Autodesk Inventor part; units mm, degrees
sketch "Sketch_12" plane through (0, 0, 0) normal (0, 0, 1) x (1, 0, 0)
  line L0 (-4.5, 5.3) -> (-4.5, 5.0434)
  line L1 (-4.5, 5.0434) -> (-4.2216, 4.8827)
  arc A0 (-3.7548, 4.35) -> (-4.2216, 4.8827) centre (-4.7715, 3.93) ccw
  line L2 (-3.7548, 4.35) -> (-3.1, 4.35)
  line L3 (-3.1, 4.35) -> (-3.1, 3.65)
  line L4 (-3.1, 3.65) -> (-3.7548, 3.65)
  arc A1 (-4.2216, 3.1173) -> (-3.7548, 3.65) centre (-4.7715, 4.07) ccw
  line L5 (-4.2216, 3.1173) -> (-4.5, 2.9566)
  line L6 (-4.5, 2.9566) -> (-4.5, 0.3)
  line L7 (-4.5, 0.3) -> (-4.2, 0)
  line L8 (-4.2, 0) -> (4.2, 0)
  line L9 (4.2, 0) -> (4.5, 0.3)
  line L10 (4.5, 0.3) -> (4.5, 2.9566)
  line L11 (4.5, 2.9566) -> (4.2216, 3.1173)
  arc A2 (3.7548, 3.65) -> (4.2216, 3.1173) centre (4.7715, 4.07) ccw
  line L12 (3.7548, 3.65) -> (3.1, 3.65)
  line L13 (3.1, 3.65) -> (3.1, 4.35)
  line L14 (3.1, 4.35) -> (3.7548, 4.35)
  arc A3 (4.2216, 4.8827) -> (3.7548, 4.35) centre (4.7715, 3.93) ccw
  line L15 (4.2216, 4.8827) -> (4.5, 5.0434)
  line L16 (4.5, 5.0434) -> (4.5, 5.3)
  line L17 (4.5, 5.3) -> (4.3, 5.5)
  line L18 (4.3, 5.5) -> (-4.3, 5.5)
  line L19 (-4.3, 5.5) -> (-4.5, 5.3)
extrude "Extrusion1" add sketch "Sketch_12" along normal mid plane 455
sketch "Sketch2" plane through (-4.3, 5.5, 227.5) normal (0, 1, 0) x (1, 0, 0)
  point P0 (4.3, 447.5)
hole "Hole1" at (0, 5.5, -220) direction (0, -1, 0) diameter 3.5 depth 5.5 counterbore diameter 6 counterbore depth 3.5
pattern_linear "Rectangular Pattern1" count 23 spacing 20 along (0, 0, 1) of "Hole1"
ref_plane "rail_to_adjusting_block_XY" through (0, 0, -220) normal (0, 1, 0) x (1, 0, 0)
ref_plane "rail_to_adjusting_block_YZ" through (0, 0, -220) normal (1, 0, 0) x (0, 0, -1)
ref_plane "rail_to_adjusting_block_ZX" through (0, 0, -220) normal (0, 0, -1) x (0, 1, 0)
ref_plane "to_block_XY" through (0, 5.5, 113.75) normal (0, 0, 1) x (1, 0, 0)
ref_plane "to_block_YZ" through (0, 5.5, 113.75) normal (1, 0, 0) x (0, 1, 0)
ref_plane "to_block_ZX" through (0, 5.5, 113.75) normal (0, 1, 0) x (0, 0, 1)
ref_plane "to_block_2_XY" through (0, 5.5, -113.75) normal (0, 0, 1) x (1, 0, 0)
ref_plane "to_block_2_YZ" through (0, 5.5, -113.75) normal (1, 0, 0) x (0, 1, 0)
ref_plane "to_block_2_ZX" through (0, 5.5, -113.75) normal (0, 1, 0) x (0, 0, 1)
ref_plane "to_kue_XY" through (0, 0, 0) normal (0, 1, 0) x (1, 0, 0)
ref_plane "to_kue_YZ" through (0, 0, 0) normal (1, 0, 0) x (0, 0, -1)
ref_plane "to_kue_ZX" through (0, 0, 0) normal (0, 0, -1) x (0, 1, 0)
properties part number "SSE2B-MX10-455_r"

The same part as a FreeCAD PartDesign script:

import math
import FreeCAD as App
import Part
import Sketcher

doc = App.newDocument("Part")
params = doc.addObject("Spreadsheet::Sheet", "Params")
for row, (alias, value) in enumerate([
    ("sketch1_radius", "1.1 mm"),
    ("sketch1_width", "8.4 mm"),
    ("sketch1_width2", "8.6 mm"),
    ("sketch1_height", "0.7 mm"),
    ("pad1_length", "455 mm"),
    ("sketch2_diameter", "3.5 mm"),
    ("hole_diameter", "3.5 mm"),
    ("hole_depth", "5.5 mm"),
    ("hole_cbore_diameter", "6 mm"),
    ("hole_cbore_depth", "3.5 mm"),
    ("linearpattern_pitch", "20 mm"),
], start=1):
    params.set(f"A{row}", alias)
    params.set(f"B{row}", "=" + value)
    params.setAlias(f"B{row}", alias)

body = doc.addObject("PartDesign::Body", "Body")

sketch1 = body.newObject("Sketcher::SketchObject", "Sketch")
sketch1.AttachmentSupport = (doc.getObject("XY_Plane"), [""])
sketch1.MapMode = "FlatFace"
sketch1.addGeometry(Part.LineSegment(App.Vector(-4.3, 5.5, 0), App.Vector(-4.5, 5.3, 0)), False)
sketch1.addGeometry(Part.LineSegment(App.Vector(-4.5, 5.3, 0), App.Vector(-4.5, 5.04, 0)), False)
sketch1.addGeometry(Part.LineSegment(App.Vector(-4.5, 5.04, 0), App.Vector(-4.22, 4.88, 0)), False)
sketch1.addGeometry(Part.ArcOfCircle(Part.Circle(App.Vector(-4.77, 3.93, 0), App.Vector(0, 0, 1), 1.1), math.radians(22), math.radians(60)), False)
sketch1.addGeometry(Part.LineSegment(App.Vector(-3.75, 4.35, 0), App.Vector(-3.1, 4.35, 0)), False)
sketch1.addGeometry(Part.LineSegment(App.Vector(-3.1, 4.35, 0), App.Vector(-3.1, 3.65, 0)), False)
sketch1.addGeometry(Part.LineSegment(App.Vector(-3.1, 3.65, 0), App.Vector(-3.75, 3.65, 0)), False)
sketch1.addGeometry(Part.ArcOfCircle(Part.Circle(App.Vector(-4.77, 4.07, 0), App.Vector(0, 0, 1), 1.1), math.radians(-60), math.radians(-22)), False)
sketch1.addGeometry(Part.LineSegment(App.Vector(-4.22, 3.12, 0), App.Vector(-4.5, 2.96, 0)), False)
sketch1.addGeometry(Part.LineSegment(App.Vector(-4.5, 2.96, 0), App.Vector(-4.5, 0.3, 0)), False)
sketch1.addGeometry(Part.LineSegment(App.Vector(-4.5, 0.3, 0), App.Vector(-4.2, 0, 0)), False)
sketch1.addGeometry(Part.LineSegment(App.Vector(-4.2, 0, 0), App.Vector(4.2, 0, 0)), False)
sketch1.addGeometry(Part.LineSegment(App.Vector(4.2, 0, 0), App.Vector(4.5, 0.3, 0)), False)
sketch1.addGeometry(Part.LineSegment(App.Vector(4.5, 0.3, 0), App.Vector(4.5, 2.96, 0)), False)
sketch1.addGeometry(Part.LineSegment(App.Vector(4.5, 2.96, 0), App.Vector(4.22, 3.12, 0)), False)
sketch1.addGeometry(Part.ArcOfCircle(Part.Circle(App.Vector(4.77, 4.07, 0), App.Vector(0, 0, 1), 1.1), math.radians(-158), math.radians(-120)), False)
sketch1.addGeometry(Part.LineSegment(App.Vector(3.75, 3.65, 0), App.Vector(3.1, 3.65, 0)), False)
sketch1.addGeometry(Part.LineSegment(App.Vector(3.1, 3.65, 0), App.Vector(3.1, 4.35, 0)), False)
sketch1.addGeometry(Part.LineSegment(App.Vector(3.1, 4.35, 0), App.Vector(3.75, 4.35, 0)), False)
sketch1.addGeometry(Part.ArcOfCircle(Part.Circle(App.Vector(4.77, 3.93, 0), App.Vector(0, 0, 1), 1.1), math.radians(120), math.radians(158)), False)
sketch1.addGeometry(Part.LineSegment(App.Vector(4.22, 4.88, 0), App.Vector(4.5, 5.04, 0)), False)
sketch1.addGeometry(Part.LineSegment(App.Vector(4.5, 5.04, 0), App.Vector(4.5, 5.3, 0)), False)
sketch1.addGeometry(Part.LineSegment(App.Vector(4.5, 5.3, 0), App.Vector(4.3, 5.5, 0)), False)
sketch1.addGeometry(Part.LineSegment(App.Vector(4.3, 5.5, 0), App.Vector(-4.3, 5.5, 0)), False)
sketch1.addConstraint(Sketcher.Constraint("Coincident", 0, 2, 1, 1))
sketch1.addConstraint(Sketcher.Constraint("Coincident", 1, 2, 2, 1))
sketch1.addConstraint(Sketcher.Constraint("Tangent", 2, 2, 3, 2))
sketch1.addConstraint(Sketcher.Constraint("Coincident", 3, 1, 4, 1))
sketch1.addConstraint(Sketcher.Constraint("Coincident", 4, 2, 5, 1))
sketch1.addConstraint(Sketcher.Constraint("Coincident", 5, 2, 6, 1))
sketch1.addConstraint(Sketcher.Constraint("Coincident", 6, 2, 7, 2))
sketch1.addConstraint(Sketcher.Constraint("Tangent", 7, 1, 8, 1))
sketch1.addConstraint(Sketcher.Constraint("Coincident", 8, 2, 9, 1))
sketch1.addConstraint(Sketcher.Constraint("Coincident", 9, 2, 10, 1))
sketch1.addConstraint(Sketcher.Constraint("Coincident", 10, 2, 11, 1))
sketch1.addConstraint(Sketcher.Constraint("Coincident", 11, 2, 12, 1))
sketch1.addConstraint(Sketcher.Constraint("Coincident", 12, 2, 13, 1))
sketch1.addConstraint(Sketcher.Constraint("Coincident", 13, 2, 14, 1))
sketch1.addConstraint(Sketcher.Constraint("Tangent", 14, 2, 15, 2))
sketch1.addConstraint(Sketcher.Constraint("Coincident", 15, 1, 16, 1))
sketch1.addConstraint(Sketcher.Constraint("Coincident", 16, 2, 17, 1))
sketch1.addConstraint(Sketcher.Constraint("Coincident", 17, 2, 18, 1))
sketch1.addConstraint(Sketcher.Constraint("Coincident", 18, 2, 19, 2))
sketch1.addConstraint(Sketcher.Constraint("Tangent", 19, 1, 20, 1))
sketch1.addConstraint(Sketcher.Constraint("Coincident", 20, 2, 21, 1))
sketch1.addConstraint(Sketcher.Constraint("Coincident", 21, 2, 22, 1))
sketch1.addConstraint(Sketcher.Constraint("Coincident", 22, 2, 23, 1))
sketch1.addConstraint(Sketcher.Constraint("Coincident", 23, 2, 0, 1))
sketch1.addConstraint(Sketcher.Constraint("Vertical", 1))
sketch1.addConstraint(Sketcher.Constraint("Horizontal", 4))
sketch1.addConstraint(Sketcher.Constraint("Vertical", 5))
sketch1.addConstraint(Sketcher.Constraint("Horizontal", 6))
sketch1.addConstraint(Sketcher.Constraint("Vertical", 9))
sketch1.addConstraint(Sketcher.Constraint("Horizontal", 11))
sketch1.addConstraint(Sketcher.Constraint("Vertical", 13))
sketch1.addConstraint(Sketcher.Constraint("Horizontal", 16))
sketch1.addConstraint(Sketcher.Constraint("Vertical", 17))
sketch1.addConstraint(Sketcher.Constraint("Horizontal", 18))
sketch1.addConstraint(Sketcher.Constraint("Vertical", 21))
sketch1.addConstraint(Sketcher.Constraint("Horizontal", 23))
sketch1.addConstraint(Sketcher.Constraint("Equal", 3, 7))
sketch1.addConstraint(Sketcher.Constraint("Equal", 7, 15))
sketch1.addConstraint(Sketcher.Constraint("Equal", 15, 19))
sketch1.addConstraint(Sketcher.Constraint("Symmetric", 10, 2, 11, 2, -1, 1))
sketch1.addConstraint(Sketcher.Constraint("Symmetric", 7, 3, 15, 3, -2))
sketch1.addConstraint(Sketcher.Constraint("Symmetric", 3, 3, 19, 3, -2))
sketch1.addConstraint(Sketcher.Constraint("Symmetric", 9, 2, 12, 2, -2))
sketch1.addConstraint(Sketcher.Constraint("Symmetric", 5, 2, 16, 2, -2))
sketch1.addConstraint(Sketcher.Constraint("Symmetric", 1, 2, 20, 2, -2))
sketch1.addConstraint(Sketcher.Constraint("Perpendicular", 0, 10))
sketch1.addConstraint(Sketcher.Constraint("Perpendicular", 10, 12))
sketch1.addConstraint(Sketcher.Constraint("Parallel", 2, 14))
sketch1.addConstraint(Sketcher.Constraint("Parallel", 8, 20))
sketch1.addConstraint(Sketcher.Constraint("Perpendicular", 12, 22))
sketch1.addConstraint(Sketcher.Constraint("Horizontal", 4, 2, 17, 2))
sketch1.addConstraint(Sketcher.Constraint("Horizontal", 0, 2, 21, 2))
sketch1.addConstraint(Sketcher.Constraint("Vertical", 3, 3, 7, 3))
sketch1.addConstraint(Sketcher.Constraint("Vertical", 3, 1, 6, 2))
sketch1.addConstraint(Sketcher.Constraint("Vertical", 1, 2, 8, 2))
sketch1.addConstraint(Sketcher.Constraint("Radius", 3, 1.1))
sketch1.addConstraint(Sketcher.Constraint("DistanceX", 11, 1, 11, 2, 8.4))
sketch1.addConstraint(Sketcher.Constraint("DistanceX", 23, 2, 23, 1, 8.6))
sketch1.addConstraint(Sketcher.Constraint("DistanceY", 5, 2, 5, 1, 0.7))
sketch1.addConstraint(Sketcher.Constraint("DistanceX", 0, 2, -1, 1, 4.5))
sketch1.addConstraint(Sketcher.Constraint("DistanceY", -1, 1, 0, 2, 5.3))
sketch1.addConstraint(Sketcher.Constraint("DistanceX", 4, 2, -1, 1, 3.1))
sketch1.addConstraint(Sketcher.Constraint("DistanceY", -1, 1, 3, 3, 3.93))
sketch1.addConstraint(Sketcher.Constraint("DistanceY", -1, 1, 7, 3, 4.07))
sketch1.addConstraint(Sketcher.Constraint("DistanceX", 7, 3, 2, 2, 0.55))
sketch1.addConstraint(Sketcher.Constraint("DistanceX", 4, 1, 4, 2, 0.6548))
sketch1.setExpression("Constraints[55]", "Params.sketch1_radius")
sketch1.setExpression("Constraints[56]", "Params.sketch1_width")
sketch1.setExpression("Constraints[57]", "Params.sketch1_width2")
sketch1.setExpression("Constraints[58]", "Params.sketch1_height")
pad1 = body.newObject("PartDesign::Pad", "Pad")
pad1.Profile = sketch1
pad1.setExpression("Length", "Params.pad1_length")
pad1.Midplane = True

sketch2 = body.newObject("Sketcher::SketchObject", "Sketch001")
sketch2.AttachmentSupport = (doc.getObject("XZ_Plane"), [""])
sketch2.MapMode = "FlatFace"
sketch2.AttachmentOffset = App.Placement(App.Vector(0, 0, -5.5), App.Rotation())
sketch2.addGeometry(Part.Circle(App.Vector(0, -220, 0), App.Vector(0, 0, 1), 1.8), False)
sketch2.addConstraint(Sketcher.Constraint("PointOnObject", 0, 3, -2))
sketch2.addConstraint(Sketcher.Constraint("Diameter", 0, 3.5))
sketch2.addConstraint(Sketcher.Constraint("DistanceY", 0, 3, -1, 1, 220.0))
sketch2.setExpression("Constraints[1]", "Params.sketch2_diameter")
doc.recompute()
hole = body.newObject("PartDesign::Hole", "Hole")
hole.Profile = sketch2
hole.ThreadType = "None"
hole.setExpression("Diameter", "Params.hole_diameter")
hole.DepthType = "Dimension"
hole.setExpression("Depth", "Params.hole_depth")
hole.DrillPoint = "Flat"
hole.HoleCutType = "Counterbore"
hole.setExpression("HoleCutDiameter", "Params.hole_cbore_diameter")
hole.setExpression("HoleCutDepth", "Params.hole_cbore_depth")
hole.Reversed = True
doc.recompute()

linearpattern = body.newObject("PartDesign::LinearPattern", "LinearPattern")
linearpattern.Originals = [hole]
linearpattern.Direction = (doc.getObject("Z_Axis"), [""])
linearpattern.Mode = "offset"
linearpattern.setExpression("Offset", "Params.linearpattern_pitch")
linearpattern.Occurrences = 23
body.Tip = linearpattern

doc.recompute()
